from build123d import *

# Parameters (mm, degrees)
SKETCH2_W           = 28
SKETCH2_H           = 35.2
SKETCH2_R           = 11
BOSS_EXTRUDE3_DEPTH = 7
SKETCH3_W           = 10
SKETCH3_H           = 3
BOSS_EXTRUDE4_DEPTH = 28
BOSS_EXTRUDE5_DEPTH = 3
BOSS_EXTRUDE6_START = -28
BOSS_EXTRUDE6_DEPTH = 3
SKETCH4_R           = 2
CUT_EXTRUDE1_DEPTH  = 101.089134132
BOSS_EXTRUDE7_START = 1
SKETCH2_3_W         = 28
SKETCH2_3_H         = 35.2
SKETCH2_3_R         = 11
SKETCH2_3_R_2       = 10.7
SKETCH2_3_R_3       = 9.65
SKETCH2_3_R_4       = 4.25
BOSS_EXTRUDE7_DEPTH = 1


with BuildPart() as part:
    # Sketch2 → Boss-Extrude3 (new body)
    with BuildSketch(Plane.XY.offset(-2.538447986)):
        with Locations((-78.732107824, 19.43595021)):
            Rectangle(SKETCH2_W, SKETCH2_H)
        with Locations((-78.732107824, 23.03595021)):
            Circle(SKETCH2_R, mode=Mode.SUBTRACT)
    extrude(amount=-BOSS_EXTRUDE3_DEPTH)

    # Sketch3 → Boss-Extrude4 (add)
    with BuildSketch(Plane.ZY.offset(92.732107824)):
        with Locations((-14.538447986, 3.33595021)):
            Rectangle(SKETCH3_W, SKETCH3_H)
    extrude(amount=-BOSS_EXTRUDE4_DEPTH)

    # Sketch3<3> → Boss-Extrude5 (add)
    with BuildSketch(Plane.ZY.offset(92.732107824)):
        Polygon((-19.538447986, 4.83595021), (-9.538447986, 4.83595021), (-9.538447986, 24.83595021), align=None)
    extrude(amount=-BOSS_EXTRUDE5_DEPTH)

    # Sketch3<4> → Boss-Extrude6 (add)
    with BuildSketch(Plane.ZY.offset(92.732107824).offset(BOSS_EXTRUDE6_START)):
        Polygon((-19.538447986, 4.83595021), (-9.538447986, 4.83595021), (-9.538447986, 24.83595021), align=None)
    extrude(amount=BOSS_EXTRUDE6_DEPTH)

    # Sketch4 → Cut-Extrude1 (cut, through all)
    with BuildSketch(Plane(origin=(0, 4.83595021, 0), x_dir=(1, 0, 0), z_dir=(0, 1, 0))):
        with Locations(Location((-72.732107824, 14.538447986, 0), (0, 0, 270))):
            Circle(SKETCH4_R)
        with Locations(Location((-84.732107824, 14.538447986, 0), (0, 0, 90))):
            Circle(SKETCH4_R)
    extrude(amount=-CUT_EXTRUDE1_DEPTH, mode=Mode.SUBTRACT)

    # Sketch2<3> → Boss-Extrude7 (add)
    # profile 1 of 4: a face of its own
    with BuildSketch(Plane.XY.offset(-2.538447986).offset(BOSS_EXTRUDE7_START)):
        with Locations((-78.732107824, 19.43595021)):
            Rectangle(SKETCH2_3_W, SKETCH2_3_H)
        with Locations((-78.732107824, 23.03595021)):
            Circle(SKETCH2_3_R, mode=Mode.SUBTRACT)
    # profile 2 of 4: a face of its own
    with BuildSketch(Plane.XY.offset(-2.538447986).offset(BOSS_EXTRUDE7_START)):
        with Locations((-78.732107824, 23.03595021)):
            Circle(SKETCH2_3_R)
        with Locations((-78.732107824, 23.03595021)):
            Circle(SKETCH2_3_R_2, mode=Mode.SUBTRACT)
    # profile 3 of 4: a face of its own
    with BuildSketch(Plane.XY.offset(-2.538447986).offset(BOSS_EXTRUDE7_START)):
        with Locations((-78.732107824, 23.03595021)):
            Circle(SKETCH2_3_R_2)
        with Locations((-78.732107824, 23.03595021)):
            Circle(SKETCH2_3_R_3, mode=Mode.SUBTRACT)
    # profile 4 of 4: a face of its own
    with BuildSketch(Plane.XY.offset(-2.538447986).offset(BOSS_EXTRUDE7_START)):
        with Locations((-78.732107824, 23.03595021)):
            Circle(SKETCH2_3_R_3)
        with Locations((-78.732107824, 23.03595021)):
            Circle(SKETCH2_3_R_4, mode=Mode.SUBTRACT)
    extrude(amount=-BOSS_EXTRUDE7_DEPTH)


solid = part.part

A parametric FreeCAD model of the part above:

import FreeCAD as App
import Part
import Sketcher

V = App.Vector

doc = App.newDocument("Part")
body = doc.addObject("PartDesign::Body", "Body")

# Sketch on XY plane
sketch1 = doc.addObject("Sketcher::SketchObject", "Sketch")
body.addObject(sketch1)
sketch1.AttachmentSupport = (doc.XY_Plane, [""])
sketch1.MapMode = "FlatFace"
sketch1.AttachmentOffset = App.Placement(V(0, 0, -2.538448), App.Rotation())
sketch1.addGeometry([
    Part.LineSegment(V(-93, 37, 0), V(-93, 2, 0)),  # 0
    Part.LineSegment(V(-93, 2, 0), V(-65, 2, 0)),  # 1
    Part.LineSegment(V(-65, 2, 0), V(-65, 37, 0)),  # 2
    Part.LineSegment(V(-65, 37, 0), V(-93, 37, 0)),  # 3
    Part.Circle(V(-79, 23, 0), V(0, 0, 1), 11),  # 4
], False)
sketch1.addConstraint([
    Sketcher.Constraint("Coincident", 0, 2, 1, 1),
    Sketcher.Constraint("Coincident", 1, 2, 2, 1),
    Sketcher.Constraint("Coincident", 2, 2, 3, 1),
    Sketcher.Constraint("Coincident", 3, 2, 0, 1),
    Sketcher.Constraint("Vertical", 0),
    Sketcher.Constraint("Horizontal", 1),
    Sketcher.Constraint("Vertical", 2),
    Sketcher.Constraint("Horizontal", 3),
    Sketcher.Constraint("Diameter", 4, 22.0),
    Sketcher.Constraint("DistanceX", 1, 1, 1, 2, 28.0),
    Sketcher.Constraint("DistanceY", 0, 2, 0, 1, 35.2),
    Sketcher.Constraint("DistanceX", 0, 2, 4, 3, 14.0),
    Sketcher.Constraint("DistanceY", 4, 3, 2, 2, 14.0),
    Sketcher.Constraint("DistanceY", -1, 1, 4, 3, 23.03595),
    Sketcher.Constraint("DistanceX", 4, 3, -1, 1, 78.732108),
])
pad1 = doc.addObject("PartDesign::Pad", "Pad")
body.addObject(pad1)
pad1.Profile = sketch1
pad1.Length = 7
pad1.Reversed = True

# Sketch on YZ plane
sketch2 = doc.addObject("Sketcher::SketchObject", "Sketch001")
body.addObject(sketch2)
sketch2.AttachmentSupport = (doc.YZ_Plane, [""])
sketch2.MapMode = "FlatFace"
sketch2.AttachmentOffset = App.Placement(V(0, 0, -92.732108), App.Rotation())
sketch2.addGeometry([
    Part.LineSegment(V(4.8, -19.5, 0), V(1.8, -19.5, 0)),
    Part.LineSegment(V(1.8, -19.5, 0), V(1.8, -9.5, 0)),
    Part.LineSegment(V(1.8, -9.5, 0), V(4.8, -9.5, 0)),
    Part.LineSegment(V(4.8, -9.5, 0), V(4.8, -19.5, 0)),
], False)
sketch2.addConstraint([
    Sketcher.Constraint("Coincident", 0, 2, 1, 1),
    Sketcher.Constraint("Coincident", 1, 2, 2, 1),
    Sketcher.Constraint("Coincident", 2, 2, 3, 1),
    Sketcher.Constraint("Coincident", 3, 2, 0, 1),
    Sketcher.Constraint("Horizontal", 0),
    Sketcher.Constraint("Vertical", 1),
    Sketcher.Constraint("Horizontal", 2),
    Sketcher.Constraint("Vertical", 3),
    Sketcher.Constraint("DistanceX", 0, 2, 0, 1, 3.0),
    Sketcher.Constraint("DistanceY", 1, 1, 1, 2, 10.0),
    Sketcher.Constraint("DistanceX", -1, 1, 0, 2, 1.83595),
    Sketcher.Constraint("DistanceY", 0, 2, -1, 1, 19.538448),
])
pad2 = doc.addObject("PartDesign::Pad", "Pad001")
body.addObject(pad2)
pad2.Profile = sketch2
pad2.Length = 28

# Sketch on YZ plane
sketch3 = doc.addObject("Sketcher::SketchObject", "Sketch002")
body.addObject(sketch3)
sketch3.AttachmentSupport = (doc.YZ_Plane, [""])
sketch3.MapMode = "FlatFace"
sketch3.AttachmentOffset = App.Placement(V(0, 0, -92.732108), App.Rotation())
sketch3.addGeometry([
    Part.LineSegment(V(5, -20, 0), V(5, -10, 0)),
    Part.LineSegment(V(5, -10, 0), V(25, -10, 0)),
    Part.LineSegment(V(25, -10, 0), V(5, -20, 0)),
], False)
sketch3.addConstraint([
    Sketcher.Constraint("Coincident", 0, 2, 1, 1),
    Sketcher.Constraint("Coincident", 1, 2, 2, 1),
    Sketcher.Constraint("Coincident", 2, 2, 0, 1),
    Sketcher.Constraint("Vertical", 0),
    Sketcher.Constraint("Horizontal", 1),
    Sketcher.Constraint("DistanceX", 1, 1, 1, 2, 20.0),
    Sketcher.Constraint("DistanceY", 0, 1, 0, 2, 10.0),
    Sketcher.Constraint("DistanceX", -1, 1, 0, 2, 4.83595),
    Sketcher.Constraint("DistanceY", 0, 2, -1, 1, 9.538448),
])
pad3 = doc.addObject("PartDesign::Pad", "Pad002")
body.addObject(pad3)
pad3.Profile = sketch3
pad3.Length = 3

# Sketch on YZ plane
sketch4 = doc.addObject("Sketcher::SketchObject", "Sketch003")
body.addObject(sketch4)
sketch4.AttachmentSupport = (doc.YZ_Plane, [""])
sketch4.MapMode = "FlatFace"
sketch4.AttachmentOffset = App.Placement(V(0, 0, -64.732108), App.Rotation())
sketch4.addGeometry([
    Part.LineSegment(V(5, -20, 0), V(5, -10, 0)),
    Part.LineSegment(V(5, -10, 0), V(25, -10, 0)),
    Part.LineSegment(V(25, -10, 0), V(5, -20, 0)),
], False)
sketch4.addConstraint([
    Sketcher.Constraint("Coincident", 0, 2, 1, 1),
    Sketcher.Constraint("Coincident", 1, 2, 2, 1),
    Sketcher.Constraint("Coincident", 2, 2, 0, 1),
    Sketcher.Constraint("Vertical", 0),
    Sketcher.Constraint("Horizontal", 1),
    Sketcher.Constraint("DistanceX", 1, 1, 1, 2, 20.0),
    Sketcher.Constraint("DistanceY", 0, 1, 0, 2, 10.0),
    Sketcher.Constraint("DistanceX", -1, 1, 0, 2, 4.83595),
    Sketcher.Constraint("DistanceY", 0, 2, -1, 1, 9.538448),
])
pad4 = doc.addObject("PartDesign::Pad", "Pad003")
body.addObject(pad4)
pad4.Profile = sketch4
pad4.Length = 3
pad4.Reversed = True

# Sketch on XZ plane
sketch5 = doc.addObject("Sketcher::SketchObject", "Sketch004")
body.addObject(sketch5)
sketch5.AttachmentSupport = (doc.XZ_Plane, [""])
sketch5.MapMode = "FlatFace"
sketch5.AttachmentOffset = App.Placement(V(0, 0, -4.83595), App.Rotation())
sketch5.addGeometry([
    Part.Circle(V(-72.7, -14.5, 0), V(0, 0, 1), 2),
    Part.Circle(V(-84.7, -14.5, 0), V(0, 0, 1), 2),
], False)
sketch5.addConstraint([
    Sketcher.Constraint("Equal", 0, 1),
    Sketcher.Constraint("Horizontal", 0, 3, 1, 3),
    Sketcher.Constraint("Diameter", 0, 4.0),
    Sketcher.Constraint("DistanceX", 1, 3, 0, 3, 12.0),
    Sketcher.Constraint("DistanceX", 0, 3, -1, 1, 72.732108),
    Sketcher.Constraint("DistanceY", 0, 3, -1, 1, 14.538448),
])
pocket1 = doc.addObject("PartDesign::Pocket", "Pocket")
body.addObject(pocket1)
pocket1.Profile = sketch5
pocket1.Type = "ThroughAll"
pocket1.Reversed = True

# Sketch on XY plane
sketch6 = doc.addObject("Sketcher::SketchObject", "Sketch005")
body.addObject(sketch6)
sketch6.AttachmentSupport = (doc.XY_Plane, [""])
sketch6.MapMode = "FlatFace"
sketch6.AttachmentOffset = App.Placement(V(0, 0, -1.538448), App.Rotation())
sketch6.addGeometry([
    Part.LineSegment(V(-92.7, 37, 0), V(-92.7, 1.8, 0)),  # 0
    Part.LineSegment(V(-92.7, 1.8, 0), V(-64.7, 1.8, 0)),  # 1
    Part.LineSegment(V(-64.7, 1.8, 0), V(-64.7, 37, 0)),  # 2
    Part.LineSegment(V(-64.7, 37, 0), V(-92.7, 37, 0)),  # 3
    Part.Circle(V(-78.7, 23, 0), V(0, 0, 1), 4.2),  # 4
], False)
sketch6.addConstraint([
    Sketcher.Constraint("Coincident", 0, 2, 1, 1),
    Sketcher.Constraint("Coincident", 1, 2, 2, 1),
    Sketcher.Constraint("Coincident", 2, 2, 3, 1),
    Sketcher.Constraint("Coincident", 3, 2, 0, 1),
    Sketcher.Constraint("Vertical", 0),
    Sketcher.Constraint("Horizontal", 1),
    Sketcher.Constraint("Vertical", 2),
    Sketcher.Constraint("Horizontal", 3),
    Sketcher.Constraint("Diameter", 4, 8.5),
    Sketcher.Constraint("DistanceX", 1, 1, 1, 2, 28.0),
    Sketcher.Constraint("DistanceY", 0, 2, 0, 1, 35.2),
    Sketcher.Constraint("DistanceX", 0, 2, 4, 3, 14.0),
    Sketcher.Constraint("DistanceY", 4, 3, 2, 2, 14.0),
    Sketcher.Constraint("DistanceY", -1, 1, 4, 3, 23.03595),
    Sketcher.Constraint("DistanceX", 4, 3, -1, 1, 78.732108),
])
pad5 = doc.addObject("PartDesign::Pad", "Pad004")
body.addObject(pad5)
pad5.Profile = sketch6
pad5.Length = 1
pad5.Reversed = True

doc.recompute()
